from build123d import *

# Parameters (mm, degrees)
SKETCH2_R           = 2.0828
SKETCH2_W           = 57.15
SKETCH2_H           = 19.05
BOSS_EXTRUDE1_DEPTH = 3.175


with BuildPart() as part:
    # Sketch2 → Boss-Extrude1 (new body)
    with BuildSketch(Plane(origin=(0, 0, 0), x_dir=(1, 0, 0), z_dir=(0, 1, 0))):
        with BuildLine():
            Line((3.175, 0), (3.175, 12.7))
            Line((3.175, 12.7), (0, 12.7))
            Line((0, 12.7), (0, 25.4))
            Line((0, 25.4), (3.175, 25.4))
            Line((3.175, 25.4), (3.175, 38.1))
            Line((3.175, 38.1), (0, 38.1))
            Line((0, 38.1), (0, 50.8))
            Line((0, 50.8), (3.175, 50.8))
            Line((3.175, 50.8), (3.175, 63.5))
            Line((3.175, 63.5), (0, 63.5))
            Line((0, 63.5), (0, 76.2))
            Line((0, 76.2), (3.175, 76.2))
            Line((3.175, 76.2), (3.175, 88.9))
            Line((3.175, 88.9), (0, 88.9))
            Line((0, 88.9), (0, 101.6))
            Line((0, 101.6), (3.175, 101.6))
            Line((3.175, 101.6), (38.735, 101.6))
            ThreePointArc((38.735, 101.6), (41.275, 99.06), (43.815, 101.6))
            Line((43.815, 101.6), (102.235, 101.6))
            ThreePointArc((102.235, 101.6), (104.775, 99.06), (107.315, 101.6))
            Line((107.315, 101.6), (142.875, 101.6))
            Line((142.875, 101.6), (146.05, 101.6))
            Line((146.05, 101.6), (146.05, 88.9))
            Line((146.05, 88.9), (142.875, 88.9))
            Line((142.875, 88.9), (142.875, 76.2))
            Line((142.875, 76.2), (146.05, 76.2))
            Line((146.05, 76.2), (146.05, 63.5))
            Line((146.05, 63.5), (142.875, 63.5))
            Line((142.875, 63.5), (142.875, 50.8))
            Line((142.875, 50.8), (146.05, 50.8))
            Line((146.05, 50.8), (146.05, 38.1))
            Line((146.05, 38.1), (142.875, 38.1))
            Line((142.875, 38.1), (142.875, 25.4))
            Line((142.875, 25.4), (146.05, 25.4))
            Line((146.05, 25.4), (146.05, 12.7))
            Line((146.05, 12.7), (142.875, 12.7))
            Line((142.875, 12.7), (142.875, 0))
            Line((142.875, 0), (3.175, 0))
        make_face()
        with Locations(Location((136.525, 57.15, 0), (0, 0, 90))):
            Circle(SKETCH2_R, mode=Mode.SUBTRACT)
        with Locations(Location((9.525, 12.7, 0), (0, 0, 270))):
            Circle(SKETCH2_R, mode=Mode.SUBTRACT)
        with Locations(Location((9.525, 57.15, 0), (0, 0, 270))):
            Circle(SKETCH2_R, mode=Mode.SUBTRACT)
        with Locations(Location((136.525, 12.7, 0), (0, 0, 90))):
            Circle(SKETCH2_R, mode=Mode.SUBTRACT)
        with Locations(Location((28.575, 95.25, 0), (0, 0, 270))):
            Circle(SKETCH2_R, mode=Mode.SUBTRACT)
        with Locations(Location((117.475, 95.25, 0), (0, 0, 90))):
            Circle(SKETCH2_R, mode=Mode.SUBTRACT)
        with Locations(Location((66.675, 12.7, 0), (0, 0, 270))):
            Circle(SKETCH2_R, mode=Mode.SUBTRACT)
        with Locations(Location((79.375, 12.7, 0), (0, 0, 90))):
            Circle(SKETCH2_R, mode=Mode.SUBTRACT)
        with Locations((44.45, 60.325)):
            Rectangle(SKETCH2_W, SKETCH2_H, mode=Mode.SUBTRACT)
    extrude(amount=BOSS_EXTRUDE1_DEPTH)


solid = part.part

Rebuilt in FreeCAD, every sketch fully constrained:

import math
import FreeCAD as App
import Part
import Sketcher
Q = App.Units.Quantity

doc = App.newDocument("Part")
body = doc.addObject("PartDesign::Body", "Body")

# Sketch on XZ plane
sketch1 = body.newObject("Sketcher::SketchObject", "Sketch")
sketch1.AttachmentSupport = (doc.getObject("XZ_Plane"), [""])
sketch1.MapMode = "FlatFace"
sketch1.addGeometry(Part.LineSegment(App.Vector(3.2, -12.7, 0), App.Vector(3.2, 0, 0)), False)
sketch1.addGeometry(Part.LineSegment(App.Vector(3.2, 0, 0), App.Vector(142.9, 0, 0)), False)
sketch1.addGeometry(Part.LineSegment(App.Vector(142.9, 0, 0), App.Vector(142.9, -12.7, 0)), False)
sketch1.addGeometry(Part.LineSegment(App.Vector(142.9, -12.7, 0), App.Vector(146.1, -12.7, 0)), False)
sketch1.addGeometry(Part.LineSegment(App.Vector(146.1, -12.7, 0), App.Vector(146.1, -25.4, 0)), False)
sketch1.addGeometry(Part.LineSegment(App.Vector(146.1, -25.4, 0), App.Vector(142.9, -25.4, 0)), False)
sketch1.addGeometry(Part.LineSegment(App.Vector(142.9, -25.4, 0), App.Vector(142.9, -38.1, 0)), False)
sketch1.addGeometry(Part.LineSegment(App.Vector(142.9, -38.1, 0), App.Vector(146.1, -38.1, 0)), False)
sketch1.addGeometry(Part.LineSegment(App.Vector(146.1, -38.1, 0), App.Vector(146.1, -50.8, 0)), False)
sketch1.addGeometry(Part.LineSegment(App.Vector(146.1, -50.8, 0), App.Vector(142.9, -50.8, 0)), False)
sketch1.addGeometry(Part.LineSegment(App.Vector(142.9, -50.8, 0), App.Vector(142.9, -63.5, 0)), False)
sketch1.addGeometry(Part.LineSegment(App.Vector(142.9, -63.5, 0), App.Vector(146.1, -63.5, 0)), False)
sketch1.addGeometry(Part.LineSegment(App.Vector(146.1, -63.5, 0), App.Vector(146.1, -76.2, 0)), False)
sketch1.addGeometry(Part.LineSegment(App.Vector(146.1, -76.2, 0), App.Vector(142.9, -76.2, 0)), False)
sketch1.addGeometry(Part.LineSegment(App.Vector(142.9, -76.2, 0), App.Vector(142.9, -88.9, 0)), False)
sketch1.addGeometry(Part.LineSegment(App.Vector(142.9, -88.9, 0), App.Vector(146.1, -88.9, 0)), False)
sketch1.addGeometry(Part.LineSegment(App.Vector(146.1, -88.9, 0), App.Vector(146.1, -101.6, 0)), False)
sketch1.addGeometry(Part.LineSegment(App.Vector(146.1, -101.6, 0), App.Vector(107.3, -101.6, 0)), False)
sketch1.addGeometry(Part.ArcOfCircle(Part.Circle(App.Vector(104.8, -101.6, 0), App.Vector(0, 0, 1), 2.5), math.radians(0), math.radians(180)), False)
sketch1.addGeometry(Part.LineSegment(App.Vector(102.2, -101.6, 0), App.Vector(43.8, -101.6, 0)), False)
sketch1.addGeometry(Part.ArcOfCircle(Part.Circle(App.Vector(41.3, -101.6, 0), App.Vector(0, 0, 1), 2.5), math.radians(0), math.radians(180)), False)
sketch1.addGeometry(Part.LineSegment(App.Vector(38.7, -101.6, 0), App.Vector(0, -101.6, 0)), False)
sketch1.addGeometry(Part.LineSegment(App.Vector(0, -101.6, 0), App.Vector(0, -88.9, 0)), False)
sketch1.addGeometry(Part.LineSegment(App.Vector(0, -88.9, 0), App.Vector(3.2, -88.9, 0)), False)
sketch1.addGeometry(Part.LineSegment(App.Vector(3.2, -88.9, 0), App.Vector(3.2, -76.2, 0)), False)
sketch1.addGeometry(Part.LineSegment(App.Vector(3.2, -76.2, 0), App.Vector(0, -76.2, 0)), False)
sketch1.addGeometry(Part.LineSegment(App.Vector(0, -76.2, 0), App.Vector(0, -63.5, 0)), False)
sketch1.addGeometry(Part.LineSegment(App.Vector(0, -63.5, 0), App.Vector(3.2, -63.5, 0)), False)
sketch1.addGeometry(Part.LineSegment(App.Vector(3.2, -63.5, 0), App.Vector(3.2, -50.8, 0)), False)
sketch1.addGeometry(Part.LineSegment(App.Vector(3.2, -50.8, 0), App.Vector(0, -50.8, 0)), False)
sketch1.addGeometry(Part.LineSegment(App.Vector(0, -50.8, 0), App.Vector(0, -38.1, 0)), False)
sketch1.addGeometry(Part.LineSegment(App.Vector(0, -38.1, 0), App.Vector(3.2, -38.1, 0)), False)
sketch1.addGeometry(Part.LineSegment(App.Vector(3.2, -38.1, 0), App.Vector(3.2, -25.4, 0)), False)
sketch1.addGeometry(Part.LineSegment(App.Vector(3.2, -25.4, 0), App.Vector(0, -25.4, 0)), False)
sketch1.addGeometry(Part.LineSegment(App.Vector(0, -25.4, 0), App.Vector(0, -12.7, 0)), False)
sketch1.addGeometry(Part.LineSegment(App.Vector(0, -12.7, 0), App.Vector(3.2, -12.7, 0)), False)
sketch1.addGeometry(Part.Circle(App.Vector(136.5, -12.7, 0), App.Vector(0, 0, 1), 2.1), False)
sketch1.addGeometry(Part.Circle(App.Vector(79.4, -12.7, 0), App.Vector(0, 0, 1), 2.1), False)
sketch1.addGeometry(Part.Circle(App.Vector(66.7, -12.7, 0), App.Vector(0, 0, 1), 2.1), False)
sketch1.addGeometry(Part.Circle(App.Vector(9.5, -12.7, 0), App.Vector(0, 0, 1), 2.1), False)
sketch1.addGeometry(Part.Circle(App.Vector(136.5, -57.1, 0), App.Vector(0, 0, 1), 2.1), False)
sketch1.addGeometry(Part.Circle(App.Vector(117.5, -95.2, 0), App.Vector(0, 0, 1), 2.1), False)
sketch1.addGeometry(Part.LineSegment(App.Vector(15.9, -50.8, 0), App.Vector(15.9, -69.8, 0)), False)
sketch1.addGeometry(Part.LineSegment(App.Vector(15.9, -69.8, 0), App.Vector(73, -69.8, 0)), False)
sketch1.addGeometry(Part.LineSegment(App.Vector(73, -69.8, 0), App.Vector(73, -50.8, 0)), False)
sketch1.addGeometry(Part.LineSegment(App.Vector(73, -50.8, 0), App.Vector(15.9, -50.8, 0)), False)
sketch1.addGeometry(Part.Circle(App.Vector(9.5, -57.1, 0), App.Vector(0, 0, 1), 2.1), False)
sketch1.addGeometry(Part.Circle(App.Vector(28.6, -95.2, 0), App.Vector(0, 0, 1), 2.1), False)
sketch1.addConstraint(Sketcher.Constraint("Coincident", 0, 2, 1, 1))
sketch1.addConstraint(Sketcher.Constraint("Coincident", 1, 2, 2, 1))
sketch1.addConstraint(Sketcher.Constraint("Coincident", 2, 2, 3, 1))
sketch1.addConstraint(Sketcher.Constraint("Coincident", 3, 2, 4, 1))
sketch1.addConstraint(Sketcher.Constraint("Coincident", 4, 2, 5, 1))
sketch1.addConstraint(Sketcher.Constraint("Coincident", 5, 2, 6, 1))
sketch1.addConstraint(Sketcher.Constraint("Coincident", 6, 2, 7, 1))
sketch1.addConstraint(Sketcher.Constraint("Coincident", 7, 2, 8, 1))
sketch1.addConstraint(Sketcher.Constraint("Coincident", 8, 2, 9, 1))
sketch1.addConstraint(Sketcher.Constraint("Coincident", 9, 2, 10, 1))
sketch1.addConstraint(Sketcher.Constraint("Coincident", 10, 2, 11, 1))
sketch1.addConstraint(Sketcher.Constraint("Coincident", 11, 2, 12, 1))
sketch1.addConstraint(Sketcher.Constraint("Coincident", 12, 2, 13, 1))
sketch1.addConstraint(Sketcher.Constraint("Coincident", 13, 2, 14, 1))
sketch1.addConstraint(Sketcher.Constraint("Coincident", 14, 2, 15, 1))
sketch1.addConstraint(Sketcher.Constraint("Coincident", 15, 2, 16, 1))
sketch1.addConstraint(Sketcher.Constraint("Coincident", 16, 2, 17, 1))
sketch1.addConstraint(Sketcher.Constraint("Coincident", 17, 2, 18, 1))
sketch1.addConstraint(Sketcher.Constraint("Coincident", 18, 2, 19, 1))
sketch1.addConstraint(Sketcher.Constraint("Coincident", 19, 2, 20, 1))
sketch1.addConstraint(Sketcher.Constraint("Coincident", 20, 2, 21, 1))
sketch1.addConstraint(Sketcher.Constraint("Coincident", 21, 2, 22, 1))
sketch1.addConstraint(Sketcher.Constraint("Coincident", 22, 2, 23, 1))
sketch1.addConstraint(Sketcher.Constraint("Coincident", 23, 2, 24, 1))
sketch1.addConstraint(Sketcher.Constraint("Coincident", 24, 2, 25, 1))
sketch1.addConstraint(Sketcher.Constraint("Coincident", 25, 2, 26, 1))
sketch1.addConstraint(Sketcher.Constraint("Coincident", 26, 2, 27, 1))
sketch1.addConstraint(Sketcher.Constraint("Coincident", 27, 2, 28, 1))
sketch1.addConstraint(Sketcher.Constraint("Coincident", 28, 2, 29, 1))
sketch1.addConstraint(Sketcher.Constraint("Coincident", 29, 2, 30, 1))
sketch1.addConstraint(Sketcher.Constraint("Coincident", 30, 2, 31, 1))
sketch1.addConstraint(Sketcher.Constraint("Coincident", 31, 2, 32, 1))
sketch1.addConstraint(Sketcher.Constraint("Coincident", 32, 2, 33, 1))
sketch1.addConstraint(Sketcher.Constraint("Coincident", 33, 2, 34, 1))
sketch1.addConstraint(Sketcher.Constraint("Coincident", 34, 2, 35, 1))
sketch1.addConstraint(Sketcher.Constraint("Coincident", 35, 2, 0, 1))
sketch1.addConstraint(Sketcher.Constraint("Coincident", 42, 2, 43, 1))
sketch1.addConstraint(Sketcher.Constraint("Coincident", 43, 2, 44, 1))
sketch1.addConstraint(Sketcher.Constraint("Coincident", 44, 2, 45, 1))
sketch1.addConstraint(Sketcher.Constraint("Coincident", 45, 2, 42, 1))
sketch1.addConstraint(Sketcher.Constraint("Vertical", 0))
sketch1.addConstraint(Sketcher.Constraint("Horizontal", 1))
sketch1.addConstraint(Sketcher.Constraint("Vertical", 2))
sketch1.addConstraint(Sketcher.Constraint("Horizontal", 3))
sketch1.addConstraint(Sketcher.Constraint("Vertical", 4))
sketch1.addConstraint(Sketcher.Constraint("Horizontal", 5))
sketch1.addConstraint(Sketcher.Constraint("Vertical", 6))
sketch1.addConstraint(Sketcher.Constraint("Horizontal", 7))
sketch1.addConstraint(Sketcher.Constraint("Vertical", 8))
sketch1.addConstraint(Sketcher.Constraint("Horizontal", 9))
sketch1.addConstraint(Sketcher.Constraint("Vertical", 10))
sketch1.addConstraint(Sketcher.Constraint("Horizontal", 11))
sketch1.addConstraint(Sketcher.Constraint("Vertical", 12))
sketch1.addConstraint(Sketcher.Constraint("Horizontal", 13))
sketch1.addConstraint(Sketcher.Constraint("Vertical", 14))
sketch1.addConstraint(Sketcher.Constraint("Horizontal", 15))
sketch1.addConstraint(Sketcher.Constraint("Vertical", 16))
sketch1.addConstraint(Sketcher.Constraint("Horizontal", 17))
sketch1.addConstraint(Sketcher.Constraint("Horizontal", 19))
sketch1.addConstraint(Sketcher.Constraint("Horizontal", 21))
sketch1.addConstraint(Sketcher.Constraint("Vertical", 22))
sketch1.addConstraint(Sketcher.Constraint("Horizontal", 23))
sketch1.addConstraint(Sketcher.Constraint("Vertical", 24))
sketch1.addConstraint(Sketcher.Constraint("Horizontal", 25))
sketch1.addConstraint(Sketcher.Constraint("Vertical", 26))
sketch1.addConstraint(Sketcher.Constraint("Horizontal", 27))
sketch1.addConstraint(Sketcher.Constraint("Vertical", 28))
sketch1.addConstraint(Sketcher.Constraint("Horizontal", 29))
sketch1.addConstraint(Sketcher.Constraint("Vertical", 30))
sketch1.addConstraint(Sketcher.Constraint("Horizontal", 31))
sketch1.addConstraint(Sketcher.Constraint("Vertical", 32))
sketch1.addConstraint(Sketcher.Constraint("Horizontal", 33))
sketch1.addConstraint(Sketcher.Constraint("Vertical", 34))
sketch1.addConstraint(Sketcher.Constraint("Horizontal", 35))
sketch1.addConstraint(Sketcher.Constraint("Vertical", 42))
sketch1.addConstraint(Sketcher.Constraint("Horizontal", 43))
sketch1.addConstraint(Sketcher.Constraint("Vertical", 44))
sketch1.addConstraint(Sketcher.Constraint("Horizontal", 45))
sketch1.addConstraint(Sketcher.Constraint("Equal", 18, 20))
sketch1.addConstraint(Sketcher.Constraint("Equal", 36, 37))
sketch1.addConstraint(Sketcher.Constraint("Equal", 37, 38))
sketch1.addConstraint(Sketcher.Constraint("Equal", 38, 39))
sketch1.addConstraint(Sketcher.Constraint("Equal", 39, 40))
sketch1.addConstraint(Sketcher.Constraint("Equal", 40, 41))
sketch1.addConstraint(Sketcher.Constraint("Equal", 41, 46))
sketch1.addConstraint(Sketcher.Constraint("Equal", 46, 47))
sketch1.addConstraint(Sketcher.Constraint("PointOnObject", 0, 2, -1))
sketch1.addConstraint(Sketcher.Constraint("PointOnObject", 21, 2, -2))
sketch1.addConstraint(Sketcher.Constraint("PointOnObject", 25, 2, -2))
sketch1.addConstraint(Sketcher.Constraint("PointOnObject", 29, 2, -2))
sketch1.addConstraint(Sketcher.Constraint("PointOnObject", 33, 2, -2))
sketch1.addConstraint(Sketcher.Constraint("Horizontal", 18, 3, 20, 3))
sketch1.addConstraint(Sketcher.Constraint("Horizontal", 36, 3, 37, 3))
sketch1.addConstraint(Sketcher.Constraint("Horizontal", 37, 3, 38, 3))
sketch1.addConstraint(Sketcher.Constraint("Horizontal", 38, 3, 39, 3))
sketch1.addConstraint(Sketcher.Constraint("Horizontal", 40, 3, 46, 3))
sketch1.addConstraint(Sketcher.Constraint("Horizontal", 41, 3, 47, 3))
sketch1.addConstraint(Sketcher.Constraint("Horizontal", 39, 3, 2, 2))
sketch1.addConstraint(Sketcher.Constraint("Horizontal", 20, 3, 16, 2))
sketch1.addConstraint(Sketcher.Constraint("Horizontal", 17, 2, 18, 2))
sketch1.addConstraint(Sketcher.Constraint("Horizontal", 19, 2, 20, 2))
sketch1.addConstraint(Sketcher.Constraint("Horizontal", 15, 2, 22, 2))
sketch1.addConstraint(Sketcher.Constraint("Horizontal", 13, 2, 24, 2))
sketch1.addConstraint(Sketcher.Constraint("Horizontal", 11, 2, 26, 2))
sketch1.addConstraint(Sketcher.Constraint("Horizontal", 9, 2, 28, 2))
sketch1.addConstraint(Sketcher.Constraint("Horizontal", 7, 2, 30, 2))
sketch1.addConstraint(Sketcher.Constraint("Horizontal", 5, 2, 32, 2))
sketch1.addConstraint(Sketcher.Constraint("Horizontal", 3, 2, 34, 2))
sketch1.addConstraint(Sketcher.Constraint("Horizontal", 29, 2, 44, 2))
sketch1.addConstraint(Sketcher.Constraint("Vertical", 36, 3, 40, 3))
sketch1.addConstraint(Sketcher.Constraint("Vertical", 39, 3, 46, 3))
sketch1.addConstraint(Sketcher.Constraint("Vertical", 2, 2, 5, 2))
sketch1.addConstraint(Sketcher.Constraint("Vertical", 4, 2, 7, 2))
sketch1.addConstraint(Sketcher.Constraint("Vertical", 6, 2, 9, 2))
sketch1.addConstraint(Sketcher.Constraint("Vertical", 8, 2, 11, 2))
sketch1.addConstraint(Sketcher.Constraint("Vertical", 10, 2, 13, 2))
sketch1.addConstraint(Sketcher.Constraint("Vertical", 12, 2, 15, 2))
sketch1.addConstraint(Sketcher.Constraint("Vertical", 0, 2, 23, 2))
sketch1.addConstraint(Sketcher.Constraint("Vertical", 24, 2, 27, 2))
sketch1.addConstraint(Sketcher.Constraint("Vertical", 28, 2, 31, 2))
sketch1.addConstraint(Sketcher.Constraint("Equal", 17, 21))
sketch1.addConstraint(Sketcher.Constraint("Equal", 15, 23))
sketch1.addConstraint(Sketcher.Constraint("Equal", 2, 4))
sketch1.addConstraint(Sketcher.Constraint("Equal", 4, 6))
sketch1.addConstraint(Sketcher.Constraint("Equal", 6, 8))
sketch1.addConstraint(Sketcher.Constraint("Equal", 8, 10))
sketch1.addConstraint(Sketcher.Constraint("Equal", 10, 12))
sketch1.addConstraint(Sketcher.Constraint("Equal", 12, 14))
sketch1.addConstraint(Sketcher.Constraint("Equal", 14, 16))
sketch1.addConstraint(Sketcher.Constraint("Radius", 18, Q("0.1 in")))
sketch1.addConstraint(Sketcher.Constraint("Diameter", 36, Q("0.164 in")))
sketch1.addConstraint(Sketcher.Constraint("DistanceX", 1, 1, 1, 2, Q("5.5 in")))
sketch1.addConstraint(Sketcher.Constraint("DistanceX", 19, 2, 19, 1, Q("2.3 in")))
sketch1.addConstraint(Sketcher.Constraint("DistanceY", 0, 1, 0, 2, Q("0.5 in")))
sketch1.addConstraint(Sketcher.Constraint("DistanceX", 37, 3, 18, 3, Q("1 in")))
sketch1.addConstraint(Sketcher.Constraint("DistanceX", 20, 3, 38, 3, Q("1 in")))
sketch1.addConstraint(Sketcher.Constraint("DistanceX", 39, 3, 36, 3, Q("5 in")))
sketch1.addConstraint(Sketcher.Constraint("DistanceX", 20, 3, 41, 3, Q("3 in")))
sketch1.addConstraint(Sketcher.Constraint("DistanceX", 47, 3, 18, 3, Q("3 in")))
sketch1.addConstraint(Sketcher.Constraint("DistanceX", 43, 1, 43, 2, Q("2.25 in")))
sketch1.addConstraint(Sketcher.Constraint("DistanceY", 42, 2, 42, 1, Q("0.75 in")))
sketch1.addConstraint(Sketcher.Constraint("DistanceY", 41, 3, 40, 3, Q("1.5 in")))
sketch1.addConstraint(Sketcher.Constraint("DistanceY", 42, 2, 46, 3, Q("0.5 in")))
sketch1.addConstraint(Sketcher.Constraint("DistanceX", 27, 2, 42, 2, Q("0.5 in")))
sketch1.addConstraint(Sketcher.Constraint("DistanceX", 3, 1, 3, 2, Q("0.125 in")))
sketch1.addConstraint(Sketcher.Constraint("DistanceX", 18, 3, 36, 3, Q("1.25 in")))
pad1 = body.newObject("PartDesign::Pad", "Pad")
pad1.Profile = sketch1
pad1.Length = Q("0.125 in")
pad1.Reversed = True

doc.recompute()
